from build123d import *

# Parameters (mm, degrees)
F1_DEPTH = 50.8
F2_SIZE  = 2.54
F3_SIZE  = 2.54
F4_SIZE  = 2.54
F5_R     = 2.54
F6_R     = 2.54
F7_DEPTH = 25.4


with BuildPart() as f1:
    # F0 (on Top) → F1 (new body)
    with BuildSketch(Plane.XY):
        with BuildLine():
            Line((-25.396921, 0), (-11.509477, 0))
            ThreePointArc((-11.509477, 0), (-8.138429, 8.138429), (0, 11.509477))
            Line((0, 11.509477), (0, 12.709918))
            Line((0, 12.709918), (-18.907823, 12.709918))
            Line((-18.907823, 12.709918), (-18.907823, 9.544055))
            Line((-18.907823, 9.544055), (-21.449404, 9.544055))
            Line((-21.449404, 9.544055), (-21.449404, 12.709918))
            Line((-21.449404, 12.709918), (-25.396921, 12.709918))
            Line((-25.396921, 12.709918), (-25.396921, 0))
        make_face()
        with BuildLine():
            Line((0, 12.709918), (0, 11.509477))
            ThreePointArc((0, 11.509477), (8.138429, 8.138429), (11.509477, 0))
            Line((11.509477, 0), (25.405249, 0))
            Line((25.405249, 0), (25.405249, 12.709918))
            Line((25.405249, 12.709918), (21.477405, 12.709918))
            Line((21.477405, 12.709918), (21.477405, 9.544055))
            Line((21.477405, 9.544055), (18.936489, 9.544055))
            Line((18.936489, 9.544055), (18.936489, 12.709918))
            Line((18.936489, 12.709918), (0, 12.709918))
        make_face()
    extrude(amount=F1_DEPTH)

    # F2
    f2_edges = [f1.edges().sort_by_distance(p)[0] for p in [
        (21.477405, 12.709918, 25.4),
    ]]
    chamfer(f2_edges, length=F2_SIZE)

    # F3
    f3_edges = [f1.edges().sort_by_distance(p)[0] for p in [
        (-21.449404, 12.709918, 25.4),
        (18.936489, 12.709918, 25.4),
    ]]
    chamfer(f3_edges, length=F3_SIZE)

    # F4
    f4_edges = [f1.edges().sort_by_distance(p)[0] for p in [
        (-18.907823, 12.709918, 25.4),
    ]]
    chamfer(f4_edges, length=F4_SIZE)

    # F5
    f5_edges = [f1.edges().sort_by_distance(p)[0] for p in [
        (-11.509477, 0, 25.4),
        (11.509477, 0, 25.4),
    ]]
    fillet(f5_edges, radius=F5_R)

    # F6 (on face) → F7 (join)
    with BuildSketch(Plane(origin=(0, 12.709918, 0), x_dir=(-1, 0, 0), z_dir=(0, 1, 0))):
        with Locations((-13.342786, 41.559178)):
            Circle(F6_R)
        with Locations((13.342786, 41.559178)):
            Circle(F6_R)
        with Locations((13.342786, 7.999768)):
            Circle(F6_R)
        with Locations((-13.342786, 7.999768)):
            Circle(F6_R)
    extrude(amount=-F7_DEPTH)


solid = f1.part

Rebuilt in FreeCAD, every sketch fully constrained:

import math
import FreeCAD as App
import Part
import Sketcher
Q = App.Units.Quantity


def edges_at(feature, points):
    """Names of the edges that pass closest to the given points."""
    edges = feature.Shape.Edges
    near = lambda p: min(range(len(edges)), key=lambda i: edges[i].distToShape(Part.Vertex(*p))[0])
    return sorted({f"Edge{near(p) + 1}" for p in points})

doc = App.newDocument("Part")
body = doc.addObject("PartDesign::Body", "Body")

sketch1 = doc.addObject("Sketcher::SketchObject", "Sketch")
body.addObject(sketch1)
sketch1.AttachmentSupport = (doc.XY_Plane, [""])
sketch1.MapMode = "FlatFace"
sketch1.addGeometry([
    Part.LineSegment(App.Vector(-25.4, 0, 0), App.Vector(-11.5, 0, 0)),
    Part.ArcOfCircle(Part.Circle(App.Vector(0, 0, 0), App.Vector(0, 0, 1), 11.5), math.radians(90), math.radians(180)),
    Part.ArcOfCircle(Part.Circle(App.Vector(0, 0, 0), App.Vector(0, 0, 1), 11.5), math.radians(0), math.radians(90)),
    Part.LineSegment(App.Vector(11.5, 0, 0), App.Vector(25.4, 0, 0)),
    Part.LineSegment(App.Vector(25.4, 0, 0), App.Vector(25.4, 12.7, 0)),
    Part.LineSegment(App.Vector(25.4, 12.7, 0), App.Vector(21.5, 12.7, 0)),
    Part.LineSegment(App.Vector(21.5, 12.7, 0), App.Vector(21.5, 9.5, 0)),
    Part.LineSegment(App.Vector(21.5, 9.5, 0), App.Vector(18.9, 9.5, 0)),
    Part.LineSegment(App.Vector(18.9, 9.5, 0), App.Vector(18.9, 12.7, 0)),
    Part.LineSegment(App.Vector(18.9, 12.7, 0), App.Vector(-18.9, 12.7, 0)),
    Part.LineSegment(App.Vector(-18.9, 12.7, 0), App.Vector(-18.9, 9.5, 0)),
    Part.LineSegment(App.Vector(-18.9, 9.5, 0), App.Vector(-21.4, 9.5, 0)),
    Part.LineSegment(App.Vector(-21.4, 9.5, 0), App.Vector(-21.4, 12.7, 0)),
    Part.LineSegment(App.Vector(-21.4, 12.7, 0), App.Vector(-25.4, 12.7, 0)),
    Part.LineSegment(App.Vector(-25.4, 12.7, 0), App.Vector(-25.4, 0, 0)),
], False)
sketch1.addConstraint([
    Sketcher.Constraint("Coincident", 0, 2, 1, 2),
    Sketcher.Constraint("Tangent", 1, 1, 2, 2),
    Sketcher.Constraint("Coincident", 2, 1, 3, 1),
    Sketcher.Constraint("Coincident", 3, 2, 4, 1),
    Sketcher.Constraint("Coincident", 4, 2, 5, 1),
    Sketcher.Constraint("Coincident", 5, 2, 6, 1),
    Sketcher.Constraint("Coincident", 6, 2, 7, 1),
    Sketcher.Constraint("Coincident", 7, 2, 8, 1),
    Sketcher.Constraint("Coincident", 8, 2, 9, 1),
    Sketcher.Constraint("Coincident", 9, 2, 10, 1),
    Sketcher.Constraint("Coincident", 10, 2, 11, 1),
    Sketcher.Constraint("Coincident", 11, 2, 12, 1),
    Sketcher.Constraint("Coincident", 12, 2, 13, 1),
    Sketcher.Constraint("Coincident", 13, 2, 14, 1),
    Sketcher.Constraint("Coincident", 14, 2, 0, 1),
    Sketcher.Constraint("Horizontal", 0),
    Sketcher.Constraint("Horizontal", 3),
    Sketcher.Constraint("Vertical", 4),
    Sketcher.Constraint("Horizontal", 5),
    Sketcher.Constraint("Vertical", 6),
    Sketcher.Constraint("Horizontal", 7),
    Sketcher.Constraint("Vertical", 8),
    Sketcher.Constraint("Horizontal", 9),
    Sketcher.Constraint("Vertical", 10),
    Sketcher.Constraint("Horizontal", 11),
    Sketcher.Constraint("Vertical", 12),
    Sketcher.Constraint("Horizontal", 13),
    Sketcher.Constraint("Vertical", 14),
    Sketcher.Constraint("Coincident", 1, 3, -1, 1),
    Sketcher.Constraint("Equal", 1, 2),
    Sketcher.Constraint("PointOnObject", 0, 2, -1),
    Sketcher.Constraint("PointOnObject", 1, 1, -2),
    Sketcher.Constraint("PointOnObject", 2, 1, -1),
    Sketcher.Constraint("Horizontal", 5, 2, 8, 2),
    Sketcher.Constraint("Horizontal", 7, 2, 10, 2),
    Sketcher.Constraint("Horizontal", 9, 2, 12, 2),
    Sketcher.Constraint("Radius", 1, Q("11.509478 mm")),
    Sketcher.Constraint("DistanceX", 11, 2, 11, 1, Q("2.541581 mm")),
    Sketcher.Constraint("DistanceX", 9, 2, 2, 1, Q("30.4173 mm")),
    Sketcher.Constraint("DistanceX", 0, 1, 0, 2, Q("13.887444 mm")),
    Sketcher.Constraint("DistanceX", 3, 1, 3, 2, Q("13.895772 mm")),
    Sketcher.Constraint("DistanceX", 5, 2, 5, 1, Q("3.927844 mm")),
    Sketcher.Constraint("DistanceX", 7, 2, 7, 1, Q("2.540916 mm")),
    Sketcher.Constraint("DistanceY", 4, 1, 4, 2, Q("12.709918 mm")),
    Sketcher.Constraint("DistanceY", 6, 2, 6, 1, Q("3.165863 mm")),
])
pad1 = doc.addObject("PartDesign::Pad", "Pad")
body.addObject(pad1)
pad1.Profile = sketch1
pad1.Length = Q("2 in")
doc.recompute()

chamfer = doc.addObject("PartDesign::Chamfer", "Chamfer")
body.addObject(chamfer)
chamfer.Base = (pad1, edges_at(pad1, [(21.477, 12.71, 25.4)]))
chamfer.Size = Q("0.1 in")
doc.recompute()

chamfer2 = doc.addObject("PartDesign::Chamfer", "Chamfer001")
body.addObject(chamfer2)
chamfer2.Base = (chamfer, edges_at(chamfer, [(-21.449, 12.71, 25.4), (18.936, 12.71, 25.4)]))
chamfer2.Size = Q("0.1 in")
doc.recompute()

chamfer3 = doc.addObject("PartDesign::Chamfer", "Chamfer002")
body.addObject(chamfer3)
chamfer3.Base = (chamfer2, edges_at(chamfer2, [(-18.908, 12.71, 25.4)]))
chamfer3.Size = Q("0.1 in")
doc.recompute()

fillet = doc.addObject("PartDesign::Fillet", "Fillet")
body.addObject(fillet)
fillet.Base = (chamfer3, edges_at(chamfer3, [(-11.509, 0, 25.4), (11.509, 0, 25.4)]))
fillet.Radius = Q("0.1 in")

sketch2 = doc.addObject("Sketcher::SketchObject", "Sketch001")
body.addObject(sketch2)
sketch2.AttachmentSupport = (doc.XZ_Plane, [""])
sketch2.MapMode = "FlatFace"
sketch2.AttachmentOffset = App.Placement(App.Vector(0, 0, -12.709918), App.Rotation())
sketch2.addGeometry([
    Part.Circle(App.Vector(13.3, 41.6, 0), App.Vector(0, 0, 1), 2.5),
    Part.Circle(App.Vector(-13.3, 41.6, 0), App.Vector(0, 0, 1), 2.5),
    Part.Circle(App.Vector(-13.3, 8, 0), App.Vector(0, 0, 1), 2.5),
    Part.Circle(App.Vector(13.3, 8, 0), App.Vector(0, 0, 1), 2.5),
], False)
sketch2.addConstraint([
    Sketcher.Constraint("Equal", 0, 1),
    Sketcher.Constraint("Equal", 1, 2),
    Sketcher.Constraint("Equal", 2, 3),
    Sketcher.Constraint("Symmetric", 0, 3, 1, 3, -2),
    Sketcher.Constraint("Symmetric", 2, 3, 3, 3, -2),
    Sketcher.Constraint("Vertical", 1, 3, 2, 3),
    Sketcher.Constraint("Diameter", 0, Q("0.2 in")),
    Sketcher.Constraint("DistanceY", -1, 1, 0, 3, Q("41.559178 mm")),
    Sketcher.Constraint("DistanceY", -1, 1, 2, 3, Q("7.999768 mm")),
    Sketcher.Constraint("DistanceX", -1, 1, 0, 3, Q("13.342786 mm")),
])
pad2 = doc.addObject("PartDesign::Pad", "Pad001")
body.addObject(pad2)
pad2.Profile = sketch2
pad2.Length = Q("1 in")

doc.recompute()
